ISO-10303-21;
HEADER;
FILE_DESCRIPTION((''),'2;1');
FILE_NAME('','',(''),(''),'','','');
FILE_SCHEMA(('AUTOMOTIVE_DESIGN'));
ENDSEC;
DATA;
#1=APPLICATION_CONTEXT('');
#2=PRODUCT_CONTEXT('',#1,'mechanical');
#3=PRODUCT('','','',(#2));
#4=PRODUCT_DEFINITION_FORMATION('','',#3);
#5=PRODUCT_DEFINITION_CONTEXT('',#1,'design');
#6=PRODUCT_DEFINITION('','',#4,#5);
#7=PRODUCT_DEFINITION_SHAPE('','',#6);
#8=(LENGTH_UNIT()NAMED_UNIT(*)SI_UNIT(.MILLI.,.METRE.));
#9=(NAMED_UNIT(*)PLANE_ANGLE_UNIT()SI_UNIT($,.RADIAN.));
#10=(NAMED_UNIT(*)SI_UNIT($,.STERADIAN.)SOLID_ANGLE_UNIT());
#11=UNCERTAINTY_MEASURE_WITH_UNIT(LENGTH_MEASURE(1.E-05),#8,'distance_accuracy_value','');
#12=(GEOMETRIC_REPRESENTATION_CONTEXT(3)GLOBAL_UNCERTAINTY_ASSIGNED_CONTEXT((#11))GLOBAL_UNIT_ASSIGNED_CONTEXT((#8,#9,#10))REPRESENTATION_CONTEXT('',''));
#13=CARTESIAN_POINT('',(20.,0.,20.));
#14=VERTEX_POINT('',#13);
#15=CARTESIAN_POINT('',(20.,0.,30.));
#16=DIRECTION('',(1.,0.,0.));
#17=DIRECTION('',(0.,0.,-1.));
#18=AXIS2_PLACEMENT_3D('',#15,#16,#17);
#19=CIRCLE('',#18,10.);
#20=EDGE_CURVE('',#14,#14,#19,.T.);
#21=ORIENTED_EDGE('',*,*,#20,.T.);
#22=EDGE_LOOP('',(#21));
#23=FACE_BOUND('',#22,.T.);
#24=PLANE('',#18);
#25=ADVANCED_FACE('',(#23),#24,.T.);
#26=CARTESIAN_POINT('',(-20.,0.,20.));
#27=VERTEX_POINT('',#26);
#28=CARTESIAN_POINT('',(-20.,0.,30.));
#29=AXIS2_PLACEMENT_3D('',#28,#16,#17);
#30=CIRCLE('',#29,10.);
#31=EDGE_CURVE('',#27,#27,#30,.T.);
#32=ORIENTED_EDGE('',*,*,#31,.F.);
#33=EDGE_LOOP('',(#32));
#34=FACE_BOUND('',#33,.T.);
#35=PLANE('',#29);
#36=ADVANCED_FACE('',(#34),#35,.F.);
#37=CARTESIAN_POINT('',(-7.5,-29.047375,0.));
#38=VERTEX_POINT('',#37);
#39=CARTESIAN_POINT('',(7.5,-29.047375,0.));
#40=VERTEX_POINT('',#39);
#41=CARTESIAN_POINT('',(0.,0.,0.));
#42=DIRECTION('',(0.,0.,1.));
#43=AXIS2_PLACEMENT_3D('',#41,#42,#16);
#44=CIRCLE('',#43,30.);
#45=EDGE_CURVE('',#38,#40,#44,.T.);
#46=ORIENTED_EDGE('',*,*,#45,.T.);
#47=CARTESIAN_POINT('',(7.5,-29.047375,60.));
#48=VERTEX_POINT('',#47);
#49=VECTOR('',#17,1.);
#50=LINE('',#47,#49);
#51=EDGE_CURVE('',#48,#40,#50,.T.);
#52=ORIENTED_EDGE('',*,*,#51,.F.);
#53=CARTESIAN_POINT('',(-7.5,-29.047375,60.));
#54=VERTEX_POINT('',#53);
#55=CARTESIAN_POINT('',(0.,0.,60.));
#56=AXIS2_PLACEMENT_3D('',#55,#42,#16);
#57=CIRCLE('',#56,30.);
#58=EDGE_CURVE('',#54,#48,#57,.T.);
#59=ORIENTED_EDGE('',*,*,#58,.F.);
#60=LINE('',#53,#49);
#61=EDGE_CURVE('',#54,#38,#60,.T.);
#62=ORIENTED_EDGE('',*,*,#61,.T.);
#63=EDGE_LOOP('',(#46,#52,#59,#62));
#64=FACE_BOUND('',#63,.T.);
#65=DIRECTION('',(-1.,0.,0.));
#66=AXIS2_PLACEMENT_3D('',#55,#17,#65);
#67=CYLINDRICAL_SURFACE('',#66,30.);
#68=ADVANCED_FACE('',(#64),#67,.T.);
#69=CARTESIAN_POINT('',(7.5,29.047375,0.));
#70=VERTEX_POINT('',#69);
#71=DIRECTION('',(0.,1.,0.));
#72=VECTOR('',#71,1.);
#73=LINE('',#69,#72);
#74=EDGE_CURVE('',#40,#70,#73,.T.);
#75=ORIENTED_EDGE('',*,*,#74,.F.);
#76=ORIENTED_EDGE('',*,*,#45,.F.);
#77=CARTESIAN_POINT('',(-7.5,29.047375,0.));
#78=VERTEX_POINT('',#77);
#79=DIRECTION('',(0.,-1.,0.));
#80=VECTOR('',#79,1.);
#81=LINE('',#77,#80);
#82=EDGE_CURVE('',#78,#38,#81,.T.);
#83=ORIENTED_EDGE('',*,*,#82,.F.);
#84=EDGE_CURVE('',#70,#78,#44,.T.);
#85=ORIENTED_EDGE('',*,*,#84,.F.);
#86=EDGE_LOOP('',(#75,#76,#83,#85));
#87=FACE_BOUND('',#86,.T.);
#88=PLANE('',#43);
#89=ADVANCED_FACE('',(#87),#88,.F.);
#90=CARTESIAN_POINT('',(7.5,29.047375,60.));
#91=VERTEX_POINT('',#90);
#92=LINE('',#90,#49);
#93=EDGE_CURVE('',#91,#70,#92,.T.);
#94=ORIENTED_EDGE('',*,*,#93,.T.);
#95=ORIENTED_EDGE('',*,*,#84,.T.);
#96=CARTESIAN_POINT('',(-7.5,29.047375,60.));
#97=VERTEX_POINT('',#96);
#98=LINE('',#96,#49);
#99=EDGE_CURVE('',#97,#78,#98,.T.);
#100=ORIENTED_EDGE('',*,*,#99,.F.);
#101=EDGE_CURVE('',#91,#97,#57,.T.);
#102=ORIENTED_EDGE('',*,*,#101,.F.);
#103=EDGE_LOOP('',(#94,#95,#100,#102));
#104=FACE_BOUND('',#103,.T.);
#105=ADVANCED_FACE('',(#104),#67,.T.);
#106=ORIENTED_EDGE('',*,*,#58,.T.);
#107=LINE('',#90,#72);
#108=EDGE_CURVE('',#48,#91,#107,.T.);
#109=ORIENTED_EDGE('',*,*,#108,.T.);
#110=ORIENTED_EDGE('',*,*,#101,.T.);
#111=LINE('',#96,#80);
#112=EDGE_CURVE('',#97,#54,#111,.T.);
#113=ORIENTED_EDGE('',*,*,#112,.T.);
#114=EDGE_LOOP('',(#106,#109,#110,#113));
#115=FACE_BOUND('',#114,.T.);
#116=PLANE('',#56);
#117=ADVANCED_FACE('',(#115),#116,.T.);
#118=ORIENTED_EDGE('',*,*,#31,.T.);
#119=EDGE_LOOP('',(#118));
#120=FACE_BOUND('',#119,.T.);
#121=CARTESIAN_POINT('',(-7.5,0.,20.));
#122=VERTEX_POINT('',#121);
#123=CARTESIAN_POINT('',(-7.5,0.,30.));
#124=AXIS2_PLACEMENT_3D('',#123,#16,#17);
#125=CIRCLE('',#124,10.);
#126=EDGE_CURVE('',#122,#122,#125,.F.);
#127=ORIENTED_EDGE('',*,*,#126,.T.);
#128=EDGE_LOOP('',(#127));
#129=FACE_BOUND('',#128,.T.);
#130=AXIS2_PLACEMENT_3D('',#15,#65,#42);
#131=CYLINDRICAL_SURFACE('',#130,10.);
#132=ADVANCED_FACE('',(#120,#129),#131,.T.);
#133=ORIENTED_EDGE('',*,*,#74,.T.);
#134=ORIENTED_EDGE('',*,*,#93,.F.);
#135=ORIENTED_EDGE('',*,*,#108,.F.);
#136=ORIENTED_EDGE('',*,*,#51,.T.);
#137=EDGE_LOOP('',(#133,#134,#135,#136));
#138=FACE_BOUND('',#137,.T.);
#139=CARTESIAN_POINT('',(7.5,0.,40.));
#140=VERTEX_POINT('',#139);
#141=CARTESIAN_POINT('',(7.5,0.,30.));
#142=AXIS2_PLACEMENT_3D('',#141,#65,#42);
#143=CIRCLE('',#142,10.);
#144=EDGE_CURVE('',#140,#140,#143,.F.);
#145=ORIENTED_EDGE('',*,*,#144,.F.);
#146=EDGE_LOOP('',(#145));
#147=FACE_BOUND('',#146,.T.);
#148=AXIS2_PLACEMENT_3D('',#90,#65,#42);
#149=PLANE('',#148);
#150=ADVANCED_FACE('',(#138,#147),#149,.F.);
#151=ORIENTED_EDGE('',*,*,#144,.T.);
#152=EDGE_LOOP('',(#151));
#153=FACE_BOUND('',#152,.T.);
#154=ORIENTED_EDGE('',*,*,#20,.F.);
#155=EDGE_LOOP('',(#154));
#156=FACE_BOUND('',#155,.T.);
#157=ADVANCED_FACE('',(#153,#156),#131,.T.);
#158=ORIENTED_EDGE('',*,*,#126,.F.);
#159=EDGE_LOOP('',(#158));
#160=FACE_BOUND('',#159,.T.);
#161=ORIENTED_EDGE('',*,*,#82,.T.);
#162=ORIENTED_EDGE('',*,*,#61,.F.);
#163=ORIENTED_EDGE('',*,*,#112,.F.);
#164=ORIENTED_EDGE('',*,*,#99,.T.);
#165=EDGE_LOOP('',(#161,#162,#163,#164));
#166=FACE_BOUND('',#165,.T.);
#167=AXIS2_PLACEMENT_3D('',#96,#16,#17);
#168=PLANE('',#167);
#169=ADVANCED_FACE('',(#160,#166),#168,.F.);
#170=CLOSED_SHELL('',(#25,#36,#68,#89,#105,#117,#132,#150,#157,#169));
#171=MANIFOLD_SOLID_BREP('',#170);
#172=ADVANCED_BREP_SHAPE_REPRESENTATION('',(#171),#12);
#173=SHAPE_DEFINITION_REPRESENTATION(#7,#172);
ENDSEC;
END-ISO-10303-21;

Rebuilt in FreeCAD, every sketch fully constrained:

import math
import FreeCAD as App
import Part
import Sketcher

doc = App.newDocument("Part")
body = doc.addObject("PartDesign::Body", "Body")

sketch1 = body.newObject("Sketcher::SketchObject", "Sketch")
sketch1.AttachmentSupport = (doc.getObject("XY_Plane"), [""])
sketch1.MapMode = "FlatFace"
sketch1.addGeometry(Part.LineSegment(App.Vector(-7.5, 29.047375, 0), App.Vector(-7.5, -29.047375, 0)), False)
sketch1.addGeometry(Part.ArcOfCircle(Part.Circle(App.Vector(0, 0, 0), App.Vector(0, 0, 1), 30), math.radians(-104.477512), math.radians(-75.522488)), False)
sketch1.addGeometry(Part.LineSegment(App.Vector(7.5, -29.047375, 0), App.Vector(7.5, 29.047375, 0)), False)
sketch1.addGeometry(Part.ArcOfCircle(Part.Circle(App.Vector(0, 0, 0), App.Vector(0, 0, 1), 30), math.radians(75.522488), math.radians(104.477512)), False)
sketch1.addConstraint(Sketcher.Constraint("Coincident", 0, 2, 1, 1))
sketch1.addConstraint(Sketcher.Constraint("Coincident", 1, 2, 2, 1))
sketch1.addConstraint(Sketcher.Constraint("Coincident", 2, 2, 3, 1))
sketch1.addConstraint(Sketcher.Constraint("Coincident", 3, 2, 0, 1))
sketch1.addConstraint(Sketcher.Constraint("Vertical", 0))
sketch1.addConstraint(Sketcher.Constraint("Vertical", 2))
sketch1.addConstraint(Sketcher.Constraint("Coincident", 1, 3, -1, 1))
sketch1.addConstraint(Sketcher.Constraint("Coincident", 3, 3, -1, 1))
sketch1.addConstraint(Sketcher.Constraint("Equal", 1, 3))
sketch1.addConstraint(Sketcher.Constraint("Horizontal", 0, 2, 1, 2))
sketch1.addConstraint(Sketcher.Constraint("Radius", 1, 30.0))
sketch1.addConstraint(Sketcher.Constraint("DistanceX", 0, 2, 1, 2, 15.0))
pad1 = body.newObject("PartDesign::Pad", "Pad")
pad1.Profile = sketch1
pad1.Length = 60

sketch2 = body.newObject("Sketcher::SketchObject", "Sketch001")
sketch2.AttachmentSupport = (doc.getObject("YZ_Plane"), [""])
sketch2.MapMode = "FlatFace"
sketch2.addGeometry(Part.Circle(App.Vector(0, 30, 0), App.Vector(0, 0, 1), 10), False)
sketch2.addConstraint(Sketcher.Constraint("PointOnObject", 0, 3, -2))
sketch2.addConstraint(Sketcher.Constraint("Diameter", 0, 20.0))
sketch2.addConstraint(Sketcher.Constraint("DistanceY", -1, 1, 0, 3, 30.0))
pad2 = body.newObject("PartDesign::Pad", "Pad001")
pad2.Profile = sketch2
pad2.Length = 40
pad2.Midplane = True

doc.recompute()
